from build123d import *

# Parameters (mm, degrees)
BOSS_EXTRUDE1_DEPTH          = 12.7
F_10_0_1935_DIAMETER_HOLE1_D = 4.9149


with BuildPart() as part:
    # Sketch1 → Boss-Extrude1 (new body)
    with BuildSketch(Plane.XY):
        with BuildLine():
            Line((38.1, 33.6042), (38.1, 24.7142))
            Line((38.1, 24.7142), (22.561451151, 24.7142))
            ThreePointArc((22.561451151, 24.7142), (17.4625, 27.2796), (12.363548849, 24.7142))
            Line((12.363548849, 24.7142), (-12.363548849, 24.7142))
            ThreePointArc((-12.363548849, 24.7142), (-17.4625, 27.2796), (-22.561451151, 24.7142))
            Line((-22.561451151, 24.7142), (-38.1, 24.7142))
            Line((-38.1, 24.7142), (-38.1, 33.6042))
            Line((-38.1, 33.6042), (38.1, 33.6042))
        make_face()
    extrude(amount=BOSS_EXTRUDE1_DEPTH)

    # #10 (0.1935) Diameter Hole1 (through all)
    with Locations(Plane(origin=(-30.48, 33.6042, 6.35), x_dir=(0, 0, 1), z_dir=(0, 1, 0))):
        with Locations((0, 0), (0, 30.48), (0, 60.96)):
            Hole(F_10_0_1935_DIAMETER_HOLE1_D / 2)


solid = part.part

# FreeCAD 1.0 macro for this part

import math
import FreeCAD as App
import Part
import Sketcher
from FreeCAD import Vector
Q = App.Units.Quantity

doc = App.newDocument("Part")
body = doc.addObject("PartDesign::Body", "Body")

sketch1 = doc.addObject("Sketcher::SketchObject", "Sketch")
body.addObject(sketch1)
sketch1.AttachmentSupport = (doc.XY_Plane, [""])
sketch1.MapMode = "FlatFace"
sketch1.addGeometry(Part.LineSegment(Vector(38, 25, 0), Vector(38, 34, 0)), False)
sketch1.addGeometry(Part.LineSegment(Vector(38, 34, 0), Vector(-38, 34, 0)), False)
sketch1.addGeometry(Part.LineSegment(Vector(-38, 34, 0), Vector(-38, 25, 0)), False)
sketch1.addGeometry(Part.LineSegment(Vector(-38, 25, 0), Vector(-23, 25, 0)), False)
sketch1.addGeometry(Part.ArcOfCircle(Part.Circle(Vector(-17, 21, 0), Vector(0, 0, 1), 6), math.radians(37), math.radians(143)), False)
sketch1.addGeometry(Part.LineSegment(Vector(-12, 25, 0), Vector(12, 25, 0)), False)
sketch1.addGeometry(Part.ArcOfCircle(Part.Circle(Vector(17, 21, 0), Vector(0, 0, 1), 6), math.radians(37), math.radians(143)), False)
sketch1.addGeometry(Part.LineSegment(Vector(23, 25, 0), Vector(38, 25, 0)), False)
sketch1.addConstraint(Sketcher.Constraint("Coincident", 0, 2, 1, 1))
sketch1.addConstraint(Sketcher.Constraint("Coincident", 1, 2, 2, 1))
sketch1.addConstraint(Sketcher.Constraint("Coincident", 2, 2, 3, 1))
sketch1.addConstraint(Sketcher.Constraint("Coincident", 3, 2, 4, 2))
sketch1.addConstraint(Sketcher.Constraint("Coincident", 4, 1, 5, 1))
sketch1.addConstraint(Sketcher.Constraint("Coincident", 5, 2, 6, 2))
sketch1.addConstraint(Sketcher.Constraint("Coincident", 6, 1, 7, 1))
sketch1.addConstraint(Sketcher.Constraint("Coincident", 7, 2, 0, 1))
sketch1.addConstraint(Sketcher.Constraint("Vertical", 0))
sketch1.addConstraint(Sketcher.Constraint("Horizontal", 1))
sketch1.addConstraint(Sketcher.Constraint("Vertical", 2))
sketch1.addConstraint(Sketcher.Constraint("Horizontal", 3))
sketch1.addConstraint(Sketcher.Constraint("Horizontal", 5))
sketch1.addConstraint(Sketcher.Constraint("Horizontal", 7))
sketch1.addConstraint(Sketcher.Constraint("Equal", 4, 6))
sketch1.addConstraint(Sketcher.Constraint("Symmetric", 4, 3, 6, 3, -2))
sketch1.addConstraint(Sketcher.Constraint("Symmetric", 2, 2, 7, 2, -2))
sketch1.addConstraint(Sketcher.Constraint("Horizontal", 3, 2, 4, 1))
sketch1.addConstraint(Sketcher.Constraint("DistanceX", 1, 2, 1, 1, Q("3 in")))
sketch1.addConstraint(Sketcher.Constraint("Radius", 4, Q("0.25 in")))
sketch1.addConstraint(Sketcher.Constraint("DistanceY", 0, 1, 0, 2, Q("0.35 in")))
sketch1.addConstraint(Sketcher.Constraint("DistanceX", 4, 3, -1, 1, Q("0.6875 in")))
sketch1.addConstraint(Sketcher.Constraint("DistanceY", -1, 1, 4, 3, Q("0.824 in")))
sketch1.addConstraint(Sketcher.Constraint("DistanceY", -1, 1, 0, 2, Q("1.323 in")))
pad1 = doc.addObject("PartDesign::Pad", "Pad")
body.addObject(pad1)
pad1.Profile = sketch1
pad1.Length = Q("0.5 in")

sketch2 = doc.addObject("Sketcher::SketchObject", "Sketch001")
body.addObject(sketch2)
sketch2.AttachmentSupport = (doc.XZ_Plane, [""])
sketch2.MapMode = "FlatFace"
sketch2.AttachmentOffset = App.Placement(Vector(0, 0, -1.323 * 25.4), App.Rotation())
sketch2.addGeometry(Part.Circle(Vector(-30.5, 6.3, 0), Vector(0, 0, 1), 2.5), False)
sketch2.addGeometry(Part.Circle(Vector(0, 6.3, 0), Vector(0, 0, 1), 2.5), False)
sketch2.addGeometry(Part.Circle(Vector(30.5, 6.3, 0), Vector(0, 0, 1), 2.5), False)
sketch2.addConstraint(Sketcher.Constraint("Equal", 0, 1))
sketch2.addConstraint(Sketcher.Constraint("Equal", 1, 2))
sketch2.addConstraint(Sketcher.Constraint("Symmetric", 0, 3, 2, 3, -2))
sketch2.addConstraint(Sketcher.Constraint("PointOnObject", 1, 3, -2))
sketch2.addConstraint(Sketcher.Constraint("Horizontal", 0, 3, 1, 3))
sketch2.addConstraint(Sketcher.Constraint("Diameter", 0, Q("0.1935 in")))
sketch2.addConstraint(Sketcher.Constraint("DistanceX", 0, 3, -1, 1, Q("1.2 in")))
sketch2.addConstraint(Sketcher.Constraint("DistanceY", -1, 1, 0, 3, Q("0.25 in")))
doc.recompute()
hole = doc.addObject("PartDesign::Hole", "Hole")
body.addObject(hole)
hole.Profile = sketch2
hole.ThreadType = "None"
hole.Diameter = Q("0.1935 in")
hole.DepthType = "ThroughAll"
hole.Reversed = True

doc.recompute()
